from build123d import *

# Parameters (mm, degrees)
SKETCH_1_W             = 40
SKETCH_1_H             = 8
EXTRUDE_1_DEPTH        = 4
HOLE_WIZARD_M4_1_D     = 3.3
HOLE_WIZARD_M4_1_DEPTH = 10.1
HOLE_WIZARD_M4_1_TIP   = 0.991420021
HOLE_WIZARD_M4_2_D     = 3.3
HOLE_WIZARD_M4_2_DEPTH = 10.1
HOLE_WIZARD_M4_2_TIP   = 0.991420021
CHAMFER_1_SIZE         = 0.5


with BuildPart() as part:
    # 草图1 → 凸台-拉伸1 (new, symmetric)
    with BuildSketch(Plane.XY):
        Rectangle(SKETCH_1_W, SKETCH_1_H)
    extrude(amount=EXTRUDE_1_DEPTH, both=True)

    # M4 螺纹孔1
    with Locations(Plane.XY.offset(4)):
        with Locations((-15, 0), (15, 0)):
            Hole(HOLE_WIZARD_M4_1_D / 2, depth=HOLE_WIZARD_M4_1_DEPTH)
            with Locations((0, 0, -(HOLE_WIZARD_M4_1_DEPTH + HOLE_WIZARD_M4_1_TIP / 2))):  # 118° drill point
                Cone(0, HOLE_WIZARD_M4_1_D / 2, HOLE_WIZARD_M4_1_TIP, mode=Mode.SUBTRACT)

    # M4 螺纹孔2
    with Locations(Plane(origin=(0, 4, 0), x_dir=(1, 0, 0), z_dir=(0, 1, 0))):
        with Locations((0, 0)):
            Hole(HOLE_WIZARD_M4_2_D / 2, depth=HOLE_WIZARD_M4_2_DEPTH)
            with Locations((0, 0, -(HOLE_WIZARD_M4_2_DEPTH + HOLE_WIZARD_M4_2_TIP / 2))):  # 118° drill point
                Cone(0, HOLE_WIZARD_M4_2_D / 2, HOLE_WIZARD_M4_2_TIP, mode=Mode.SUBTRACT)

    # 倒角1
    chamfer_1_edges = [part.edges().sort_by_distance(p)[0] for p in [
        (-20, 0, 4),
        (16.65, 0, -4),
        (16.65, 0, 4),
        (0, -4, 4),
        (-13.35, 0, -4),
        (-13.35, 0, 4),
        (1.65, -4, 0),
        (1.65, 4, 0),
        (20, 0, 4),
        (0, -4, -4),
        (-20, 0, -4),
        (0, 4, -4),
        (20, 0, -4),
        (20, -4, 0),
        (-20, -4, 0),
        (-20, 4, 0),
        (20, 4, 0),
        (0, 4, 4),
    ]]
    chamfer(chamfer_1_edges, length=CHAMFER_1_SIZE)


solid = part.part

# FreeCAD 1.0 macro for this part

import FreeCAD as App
import Part
import Sketcher


def add_polygon(sketch, points):
    """Adds a closed chain of lines whose ends are joined by coincident constraints."""
    first, n = sketch.GeometryCount, len(points)
    for a, b in zip(points, points[1:] + points[:1]):
        sketch.addGeometry(Part.LineSegment(App.Vector(*a, 0), App.Vector(*b, 0)), False)
    for i in range(n):
        sketch.addConstraint(Sketcher.Constraint("Coincident", first + i, 2, first + (i + 1) % n, 1))

doc = App.newDocument("Part")
params = doc.addObject("Spreadsheet::Sheet", "Params")
for row, (alias, value) in enumerate([
    ("sketch1_width", "40 mm"),
    ("sketch1_height", "8 mm"),
    ("pad1_length", "8 mm"),
    ("sketch2_diameter", "3.3 mm"),
    ("hole_diameter", "3.3 mm"),
    ("hole_depth", "10.1 mm"),
    ("sketch3_diameter", "3.3 mm"),
    ("hole2_diameter", "3.3 mm"),
    ("hole2_depth", "10.1 mm"),
    ("chamfer_size", "0.5 mm"),
], start=1):
    params.set(f"A{row}", alias)
    params.set(f"B{row}", "=" + value)
    params.setAlias(f"B{row}", alias)

body = doc.addObject("PartDesign::Body", "Body")

sketch1 = doc.addObject("Sketcher::SketchObject", "Sketch")
body.addObject(sketch1)
sketch1.AttachmentSupport = (doc.XY_Plane, [""])
sketch1.MapMode = "FlatFace"
add_polygon(sketch1, [(-20, 4), (-20, -4), (20, -4), (20, 4)])
sketch1.addConstraint([
    Sketcher.Constraint("Vertical", 0),
    Sketcher.Constraint("Horizontal", 1),
    Sketcher.Constraint("Vertical", 2),
    Sketcher.Constraint("Horizontal", 3),
    Sketcher.Constraint("Symmetric", 0, 2, 2, 2, -1, 1),
    Sketcher.Constraint("DistanceX", 1, 1, 1, 2, 40.0),
    Sketcher.Constraint("DistanceY", 0, 2, 0, 1, 8.0),
])
sketch1.setExpression("Constraints[9]", "Params.sketch1_width")
sketch1.setExpression("Constraints[10]", "Params.sketch1_height")
pad1 = doc.addObject("PartDesign::Pad", "Pad")
body.addObject(pad1)
pad1.Profile = sketch1
pad1.setExpression("Length", "Params.pad1_length")
pad1.Midplane = True

sketch2 = doc.addObject("Sketcher::SketchObject", "Sketch001")
body.addObject(sketch2)
sketch2.AttachmentSupport = (doc.XY_Plane, [""])
sketch2.MapMode = "FlatFace"
sketch2.AttachmentOffset = App.Placement(App.Vector(0, 0, 4), App.Rotation())
sketch2.addGeometry([
    Part.Circle(App.Vector(-15, 0, 0), App.Vector(0, 0, 1), 1.6),
    Part.Circle(App.Vector(15, 0, 0), App.Vector(0, 0, 1), 1.6),
], False)
sketch2.addConstraint([
    Sketcher.Constraint("Equal", 0, 1),
    Sketcher.Constraint("Symmetric", 0, 3, 1, 3, -1, 1),
    Sketcher.Constraint("PointOnObject", 0, 3, -1),
    Sketcher.Constraint("Diameter", 0, 3.3),
    Sketcher.Constraint("DistanceX", 0, 3, -1, 1, 15.0),
])
sketch2.setExpression("Constraints[3]", "Params.sketch2_diameter")
doc.recompute()
hole = doc.addObject("PartDesign::Hole", "Hole")
body.addObject(hole)
hole.Profile = sketch2
hole.ThreadType = "None"
hole.setExpression("Diameter", "Params.hole_diameter")
hole.DepthType = "Dimension"
hole.setExpression("Depth", "Params.hole_depth")
hole.DrillPoint = "Angled"
hole.DrillPointAngle = 118

sketch3 = doc.addObject("Sketcher::SketchObject", "Sketch002")
body.addObject(sketch3)
sketch3.AttachmentSupport = (doc.XZ_Plane, [""])
sketch3.MapMode = "FlatFace"
sketch3.AttachmentOffset = App.Placement(App.Vector(0, 0, -4), App.Rotation())
sketch3.addGeometry(Part.Circle(App.Vector(0, 0, 0), App.Vector(0, 0, 1), 1.6), False)
sketch3.addConstraint([
    Sketcher.Constraint("Coincident", 0, 3, -1, 1),
    Sketcher.Constraint("Diameter", 0, 3.3),
])
sketch3.setExpression("Constraints[1]", "Params.sketch3_diameter")
doc.recompute()
hole2 = doc.addObject("PartDesign::Hole", "Hole001")
body.addObject(hole2)
hole2.Profile = sketch3
hole2.ThreadType = "None"
hole2.setExpression("Diameter", "Params.hole2_diameter")
hole2.DepthType = "Dimension"
hole2.setExpression("Depth", "Params.hole2_depth")
hole2.DrillPoint = "Angled"
hole2.DrillPointAngle = 118
hole2.Reversed = True
doc.recompute()

chamfer = doc.addObject("PartDesign::Chamfer", "Chamfer")
body.addObject(chamfer)
chamfer.Base = (hole2, ["Edge1"])
chamfer.UseAllEdges = True
chamfer.setExpression("Size", "Params.chamfer_size")

doc.recompute()
